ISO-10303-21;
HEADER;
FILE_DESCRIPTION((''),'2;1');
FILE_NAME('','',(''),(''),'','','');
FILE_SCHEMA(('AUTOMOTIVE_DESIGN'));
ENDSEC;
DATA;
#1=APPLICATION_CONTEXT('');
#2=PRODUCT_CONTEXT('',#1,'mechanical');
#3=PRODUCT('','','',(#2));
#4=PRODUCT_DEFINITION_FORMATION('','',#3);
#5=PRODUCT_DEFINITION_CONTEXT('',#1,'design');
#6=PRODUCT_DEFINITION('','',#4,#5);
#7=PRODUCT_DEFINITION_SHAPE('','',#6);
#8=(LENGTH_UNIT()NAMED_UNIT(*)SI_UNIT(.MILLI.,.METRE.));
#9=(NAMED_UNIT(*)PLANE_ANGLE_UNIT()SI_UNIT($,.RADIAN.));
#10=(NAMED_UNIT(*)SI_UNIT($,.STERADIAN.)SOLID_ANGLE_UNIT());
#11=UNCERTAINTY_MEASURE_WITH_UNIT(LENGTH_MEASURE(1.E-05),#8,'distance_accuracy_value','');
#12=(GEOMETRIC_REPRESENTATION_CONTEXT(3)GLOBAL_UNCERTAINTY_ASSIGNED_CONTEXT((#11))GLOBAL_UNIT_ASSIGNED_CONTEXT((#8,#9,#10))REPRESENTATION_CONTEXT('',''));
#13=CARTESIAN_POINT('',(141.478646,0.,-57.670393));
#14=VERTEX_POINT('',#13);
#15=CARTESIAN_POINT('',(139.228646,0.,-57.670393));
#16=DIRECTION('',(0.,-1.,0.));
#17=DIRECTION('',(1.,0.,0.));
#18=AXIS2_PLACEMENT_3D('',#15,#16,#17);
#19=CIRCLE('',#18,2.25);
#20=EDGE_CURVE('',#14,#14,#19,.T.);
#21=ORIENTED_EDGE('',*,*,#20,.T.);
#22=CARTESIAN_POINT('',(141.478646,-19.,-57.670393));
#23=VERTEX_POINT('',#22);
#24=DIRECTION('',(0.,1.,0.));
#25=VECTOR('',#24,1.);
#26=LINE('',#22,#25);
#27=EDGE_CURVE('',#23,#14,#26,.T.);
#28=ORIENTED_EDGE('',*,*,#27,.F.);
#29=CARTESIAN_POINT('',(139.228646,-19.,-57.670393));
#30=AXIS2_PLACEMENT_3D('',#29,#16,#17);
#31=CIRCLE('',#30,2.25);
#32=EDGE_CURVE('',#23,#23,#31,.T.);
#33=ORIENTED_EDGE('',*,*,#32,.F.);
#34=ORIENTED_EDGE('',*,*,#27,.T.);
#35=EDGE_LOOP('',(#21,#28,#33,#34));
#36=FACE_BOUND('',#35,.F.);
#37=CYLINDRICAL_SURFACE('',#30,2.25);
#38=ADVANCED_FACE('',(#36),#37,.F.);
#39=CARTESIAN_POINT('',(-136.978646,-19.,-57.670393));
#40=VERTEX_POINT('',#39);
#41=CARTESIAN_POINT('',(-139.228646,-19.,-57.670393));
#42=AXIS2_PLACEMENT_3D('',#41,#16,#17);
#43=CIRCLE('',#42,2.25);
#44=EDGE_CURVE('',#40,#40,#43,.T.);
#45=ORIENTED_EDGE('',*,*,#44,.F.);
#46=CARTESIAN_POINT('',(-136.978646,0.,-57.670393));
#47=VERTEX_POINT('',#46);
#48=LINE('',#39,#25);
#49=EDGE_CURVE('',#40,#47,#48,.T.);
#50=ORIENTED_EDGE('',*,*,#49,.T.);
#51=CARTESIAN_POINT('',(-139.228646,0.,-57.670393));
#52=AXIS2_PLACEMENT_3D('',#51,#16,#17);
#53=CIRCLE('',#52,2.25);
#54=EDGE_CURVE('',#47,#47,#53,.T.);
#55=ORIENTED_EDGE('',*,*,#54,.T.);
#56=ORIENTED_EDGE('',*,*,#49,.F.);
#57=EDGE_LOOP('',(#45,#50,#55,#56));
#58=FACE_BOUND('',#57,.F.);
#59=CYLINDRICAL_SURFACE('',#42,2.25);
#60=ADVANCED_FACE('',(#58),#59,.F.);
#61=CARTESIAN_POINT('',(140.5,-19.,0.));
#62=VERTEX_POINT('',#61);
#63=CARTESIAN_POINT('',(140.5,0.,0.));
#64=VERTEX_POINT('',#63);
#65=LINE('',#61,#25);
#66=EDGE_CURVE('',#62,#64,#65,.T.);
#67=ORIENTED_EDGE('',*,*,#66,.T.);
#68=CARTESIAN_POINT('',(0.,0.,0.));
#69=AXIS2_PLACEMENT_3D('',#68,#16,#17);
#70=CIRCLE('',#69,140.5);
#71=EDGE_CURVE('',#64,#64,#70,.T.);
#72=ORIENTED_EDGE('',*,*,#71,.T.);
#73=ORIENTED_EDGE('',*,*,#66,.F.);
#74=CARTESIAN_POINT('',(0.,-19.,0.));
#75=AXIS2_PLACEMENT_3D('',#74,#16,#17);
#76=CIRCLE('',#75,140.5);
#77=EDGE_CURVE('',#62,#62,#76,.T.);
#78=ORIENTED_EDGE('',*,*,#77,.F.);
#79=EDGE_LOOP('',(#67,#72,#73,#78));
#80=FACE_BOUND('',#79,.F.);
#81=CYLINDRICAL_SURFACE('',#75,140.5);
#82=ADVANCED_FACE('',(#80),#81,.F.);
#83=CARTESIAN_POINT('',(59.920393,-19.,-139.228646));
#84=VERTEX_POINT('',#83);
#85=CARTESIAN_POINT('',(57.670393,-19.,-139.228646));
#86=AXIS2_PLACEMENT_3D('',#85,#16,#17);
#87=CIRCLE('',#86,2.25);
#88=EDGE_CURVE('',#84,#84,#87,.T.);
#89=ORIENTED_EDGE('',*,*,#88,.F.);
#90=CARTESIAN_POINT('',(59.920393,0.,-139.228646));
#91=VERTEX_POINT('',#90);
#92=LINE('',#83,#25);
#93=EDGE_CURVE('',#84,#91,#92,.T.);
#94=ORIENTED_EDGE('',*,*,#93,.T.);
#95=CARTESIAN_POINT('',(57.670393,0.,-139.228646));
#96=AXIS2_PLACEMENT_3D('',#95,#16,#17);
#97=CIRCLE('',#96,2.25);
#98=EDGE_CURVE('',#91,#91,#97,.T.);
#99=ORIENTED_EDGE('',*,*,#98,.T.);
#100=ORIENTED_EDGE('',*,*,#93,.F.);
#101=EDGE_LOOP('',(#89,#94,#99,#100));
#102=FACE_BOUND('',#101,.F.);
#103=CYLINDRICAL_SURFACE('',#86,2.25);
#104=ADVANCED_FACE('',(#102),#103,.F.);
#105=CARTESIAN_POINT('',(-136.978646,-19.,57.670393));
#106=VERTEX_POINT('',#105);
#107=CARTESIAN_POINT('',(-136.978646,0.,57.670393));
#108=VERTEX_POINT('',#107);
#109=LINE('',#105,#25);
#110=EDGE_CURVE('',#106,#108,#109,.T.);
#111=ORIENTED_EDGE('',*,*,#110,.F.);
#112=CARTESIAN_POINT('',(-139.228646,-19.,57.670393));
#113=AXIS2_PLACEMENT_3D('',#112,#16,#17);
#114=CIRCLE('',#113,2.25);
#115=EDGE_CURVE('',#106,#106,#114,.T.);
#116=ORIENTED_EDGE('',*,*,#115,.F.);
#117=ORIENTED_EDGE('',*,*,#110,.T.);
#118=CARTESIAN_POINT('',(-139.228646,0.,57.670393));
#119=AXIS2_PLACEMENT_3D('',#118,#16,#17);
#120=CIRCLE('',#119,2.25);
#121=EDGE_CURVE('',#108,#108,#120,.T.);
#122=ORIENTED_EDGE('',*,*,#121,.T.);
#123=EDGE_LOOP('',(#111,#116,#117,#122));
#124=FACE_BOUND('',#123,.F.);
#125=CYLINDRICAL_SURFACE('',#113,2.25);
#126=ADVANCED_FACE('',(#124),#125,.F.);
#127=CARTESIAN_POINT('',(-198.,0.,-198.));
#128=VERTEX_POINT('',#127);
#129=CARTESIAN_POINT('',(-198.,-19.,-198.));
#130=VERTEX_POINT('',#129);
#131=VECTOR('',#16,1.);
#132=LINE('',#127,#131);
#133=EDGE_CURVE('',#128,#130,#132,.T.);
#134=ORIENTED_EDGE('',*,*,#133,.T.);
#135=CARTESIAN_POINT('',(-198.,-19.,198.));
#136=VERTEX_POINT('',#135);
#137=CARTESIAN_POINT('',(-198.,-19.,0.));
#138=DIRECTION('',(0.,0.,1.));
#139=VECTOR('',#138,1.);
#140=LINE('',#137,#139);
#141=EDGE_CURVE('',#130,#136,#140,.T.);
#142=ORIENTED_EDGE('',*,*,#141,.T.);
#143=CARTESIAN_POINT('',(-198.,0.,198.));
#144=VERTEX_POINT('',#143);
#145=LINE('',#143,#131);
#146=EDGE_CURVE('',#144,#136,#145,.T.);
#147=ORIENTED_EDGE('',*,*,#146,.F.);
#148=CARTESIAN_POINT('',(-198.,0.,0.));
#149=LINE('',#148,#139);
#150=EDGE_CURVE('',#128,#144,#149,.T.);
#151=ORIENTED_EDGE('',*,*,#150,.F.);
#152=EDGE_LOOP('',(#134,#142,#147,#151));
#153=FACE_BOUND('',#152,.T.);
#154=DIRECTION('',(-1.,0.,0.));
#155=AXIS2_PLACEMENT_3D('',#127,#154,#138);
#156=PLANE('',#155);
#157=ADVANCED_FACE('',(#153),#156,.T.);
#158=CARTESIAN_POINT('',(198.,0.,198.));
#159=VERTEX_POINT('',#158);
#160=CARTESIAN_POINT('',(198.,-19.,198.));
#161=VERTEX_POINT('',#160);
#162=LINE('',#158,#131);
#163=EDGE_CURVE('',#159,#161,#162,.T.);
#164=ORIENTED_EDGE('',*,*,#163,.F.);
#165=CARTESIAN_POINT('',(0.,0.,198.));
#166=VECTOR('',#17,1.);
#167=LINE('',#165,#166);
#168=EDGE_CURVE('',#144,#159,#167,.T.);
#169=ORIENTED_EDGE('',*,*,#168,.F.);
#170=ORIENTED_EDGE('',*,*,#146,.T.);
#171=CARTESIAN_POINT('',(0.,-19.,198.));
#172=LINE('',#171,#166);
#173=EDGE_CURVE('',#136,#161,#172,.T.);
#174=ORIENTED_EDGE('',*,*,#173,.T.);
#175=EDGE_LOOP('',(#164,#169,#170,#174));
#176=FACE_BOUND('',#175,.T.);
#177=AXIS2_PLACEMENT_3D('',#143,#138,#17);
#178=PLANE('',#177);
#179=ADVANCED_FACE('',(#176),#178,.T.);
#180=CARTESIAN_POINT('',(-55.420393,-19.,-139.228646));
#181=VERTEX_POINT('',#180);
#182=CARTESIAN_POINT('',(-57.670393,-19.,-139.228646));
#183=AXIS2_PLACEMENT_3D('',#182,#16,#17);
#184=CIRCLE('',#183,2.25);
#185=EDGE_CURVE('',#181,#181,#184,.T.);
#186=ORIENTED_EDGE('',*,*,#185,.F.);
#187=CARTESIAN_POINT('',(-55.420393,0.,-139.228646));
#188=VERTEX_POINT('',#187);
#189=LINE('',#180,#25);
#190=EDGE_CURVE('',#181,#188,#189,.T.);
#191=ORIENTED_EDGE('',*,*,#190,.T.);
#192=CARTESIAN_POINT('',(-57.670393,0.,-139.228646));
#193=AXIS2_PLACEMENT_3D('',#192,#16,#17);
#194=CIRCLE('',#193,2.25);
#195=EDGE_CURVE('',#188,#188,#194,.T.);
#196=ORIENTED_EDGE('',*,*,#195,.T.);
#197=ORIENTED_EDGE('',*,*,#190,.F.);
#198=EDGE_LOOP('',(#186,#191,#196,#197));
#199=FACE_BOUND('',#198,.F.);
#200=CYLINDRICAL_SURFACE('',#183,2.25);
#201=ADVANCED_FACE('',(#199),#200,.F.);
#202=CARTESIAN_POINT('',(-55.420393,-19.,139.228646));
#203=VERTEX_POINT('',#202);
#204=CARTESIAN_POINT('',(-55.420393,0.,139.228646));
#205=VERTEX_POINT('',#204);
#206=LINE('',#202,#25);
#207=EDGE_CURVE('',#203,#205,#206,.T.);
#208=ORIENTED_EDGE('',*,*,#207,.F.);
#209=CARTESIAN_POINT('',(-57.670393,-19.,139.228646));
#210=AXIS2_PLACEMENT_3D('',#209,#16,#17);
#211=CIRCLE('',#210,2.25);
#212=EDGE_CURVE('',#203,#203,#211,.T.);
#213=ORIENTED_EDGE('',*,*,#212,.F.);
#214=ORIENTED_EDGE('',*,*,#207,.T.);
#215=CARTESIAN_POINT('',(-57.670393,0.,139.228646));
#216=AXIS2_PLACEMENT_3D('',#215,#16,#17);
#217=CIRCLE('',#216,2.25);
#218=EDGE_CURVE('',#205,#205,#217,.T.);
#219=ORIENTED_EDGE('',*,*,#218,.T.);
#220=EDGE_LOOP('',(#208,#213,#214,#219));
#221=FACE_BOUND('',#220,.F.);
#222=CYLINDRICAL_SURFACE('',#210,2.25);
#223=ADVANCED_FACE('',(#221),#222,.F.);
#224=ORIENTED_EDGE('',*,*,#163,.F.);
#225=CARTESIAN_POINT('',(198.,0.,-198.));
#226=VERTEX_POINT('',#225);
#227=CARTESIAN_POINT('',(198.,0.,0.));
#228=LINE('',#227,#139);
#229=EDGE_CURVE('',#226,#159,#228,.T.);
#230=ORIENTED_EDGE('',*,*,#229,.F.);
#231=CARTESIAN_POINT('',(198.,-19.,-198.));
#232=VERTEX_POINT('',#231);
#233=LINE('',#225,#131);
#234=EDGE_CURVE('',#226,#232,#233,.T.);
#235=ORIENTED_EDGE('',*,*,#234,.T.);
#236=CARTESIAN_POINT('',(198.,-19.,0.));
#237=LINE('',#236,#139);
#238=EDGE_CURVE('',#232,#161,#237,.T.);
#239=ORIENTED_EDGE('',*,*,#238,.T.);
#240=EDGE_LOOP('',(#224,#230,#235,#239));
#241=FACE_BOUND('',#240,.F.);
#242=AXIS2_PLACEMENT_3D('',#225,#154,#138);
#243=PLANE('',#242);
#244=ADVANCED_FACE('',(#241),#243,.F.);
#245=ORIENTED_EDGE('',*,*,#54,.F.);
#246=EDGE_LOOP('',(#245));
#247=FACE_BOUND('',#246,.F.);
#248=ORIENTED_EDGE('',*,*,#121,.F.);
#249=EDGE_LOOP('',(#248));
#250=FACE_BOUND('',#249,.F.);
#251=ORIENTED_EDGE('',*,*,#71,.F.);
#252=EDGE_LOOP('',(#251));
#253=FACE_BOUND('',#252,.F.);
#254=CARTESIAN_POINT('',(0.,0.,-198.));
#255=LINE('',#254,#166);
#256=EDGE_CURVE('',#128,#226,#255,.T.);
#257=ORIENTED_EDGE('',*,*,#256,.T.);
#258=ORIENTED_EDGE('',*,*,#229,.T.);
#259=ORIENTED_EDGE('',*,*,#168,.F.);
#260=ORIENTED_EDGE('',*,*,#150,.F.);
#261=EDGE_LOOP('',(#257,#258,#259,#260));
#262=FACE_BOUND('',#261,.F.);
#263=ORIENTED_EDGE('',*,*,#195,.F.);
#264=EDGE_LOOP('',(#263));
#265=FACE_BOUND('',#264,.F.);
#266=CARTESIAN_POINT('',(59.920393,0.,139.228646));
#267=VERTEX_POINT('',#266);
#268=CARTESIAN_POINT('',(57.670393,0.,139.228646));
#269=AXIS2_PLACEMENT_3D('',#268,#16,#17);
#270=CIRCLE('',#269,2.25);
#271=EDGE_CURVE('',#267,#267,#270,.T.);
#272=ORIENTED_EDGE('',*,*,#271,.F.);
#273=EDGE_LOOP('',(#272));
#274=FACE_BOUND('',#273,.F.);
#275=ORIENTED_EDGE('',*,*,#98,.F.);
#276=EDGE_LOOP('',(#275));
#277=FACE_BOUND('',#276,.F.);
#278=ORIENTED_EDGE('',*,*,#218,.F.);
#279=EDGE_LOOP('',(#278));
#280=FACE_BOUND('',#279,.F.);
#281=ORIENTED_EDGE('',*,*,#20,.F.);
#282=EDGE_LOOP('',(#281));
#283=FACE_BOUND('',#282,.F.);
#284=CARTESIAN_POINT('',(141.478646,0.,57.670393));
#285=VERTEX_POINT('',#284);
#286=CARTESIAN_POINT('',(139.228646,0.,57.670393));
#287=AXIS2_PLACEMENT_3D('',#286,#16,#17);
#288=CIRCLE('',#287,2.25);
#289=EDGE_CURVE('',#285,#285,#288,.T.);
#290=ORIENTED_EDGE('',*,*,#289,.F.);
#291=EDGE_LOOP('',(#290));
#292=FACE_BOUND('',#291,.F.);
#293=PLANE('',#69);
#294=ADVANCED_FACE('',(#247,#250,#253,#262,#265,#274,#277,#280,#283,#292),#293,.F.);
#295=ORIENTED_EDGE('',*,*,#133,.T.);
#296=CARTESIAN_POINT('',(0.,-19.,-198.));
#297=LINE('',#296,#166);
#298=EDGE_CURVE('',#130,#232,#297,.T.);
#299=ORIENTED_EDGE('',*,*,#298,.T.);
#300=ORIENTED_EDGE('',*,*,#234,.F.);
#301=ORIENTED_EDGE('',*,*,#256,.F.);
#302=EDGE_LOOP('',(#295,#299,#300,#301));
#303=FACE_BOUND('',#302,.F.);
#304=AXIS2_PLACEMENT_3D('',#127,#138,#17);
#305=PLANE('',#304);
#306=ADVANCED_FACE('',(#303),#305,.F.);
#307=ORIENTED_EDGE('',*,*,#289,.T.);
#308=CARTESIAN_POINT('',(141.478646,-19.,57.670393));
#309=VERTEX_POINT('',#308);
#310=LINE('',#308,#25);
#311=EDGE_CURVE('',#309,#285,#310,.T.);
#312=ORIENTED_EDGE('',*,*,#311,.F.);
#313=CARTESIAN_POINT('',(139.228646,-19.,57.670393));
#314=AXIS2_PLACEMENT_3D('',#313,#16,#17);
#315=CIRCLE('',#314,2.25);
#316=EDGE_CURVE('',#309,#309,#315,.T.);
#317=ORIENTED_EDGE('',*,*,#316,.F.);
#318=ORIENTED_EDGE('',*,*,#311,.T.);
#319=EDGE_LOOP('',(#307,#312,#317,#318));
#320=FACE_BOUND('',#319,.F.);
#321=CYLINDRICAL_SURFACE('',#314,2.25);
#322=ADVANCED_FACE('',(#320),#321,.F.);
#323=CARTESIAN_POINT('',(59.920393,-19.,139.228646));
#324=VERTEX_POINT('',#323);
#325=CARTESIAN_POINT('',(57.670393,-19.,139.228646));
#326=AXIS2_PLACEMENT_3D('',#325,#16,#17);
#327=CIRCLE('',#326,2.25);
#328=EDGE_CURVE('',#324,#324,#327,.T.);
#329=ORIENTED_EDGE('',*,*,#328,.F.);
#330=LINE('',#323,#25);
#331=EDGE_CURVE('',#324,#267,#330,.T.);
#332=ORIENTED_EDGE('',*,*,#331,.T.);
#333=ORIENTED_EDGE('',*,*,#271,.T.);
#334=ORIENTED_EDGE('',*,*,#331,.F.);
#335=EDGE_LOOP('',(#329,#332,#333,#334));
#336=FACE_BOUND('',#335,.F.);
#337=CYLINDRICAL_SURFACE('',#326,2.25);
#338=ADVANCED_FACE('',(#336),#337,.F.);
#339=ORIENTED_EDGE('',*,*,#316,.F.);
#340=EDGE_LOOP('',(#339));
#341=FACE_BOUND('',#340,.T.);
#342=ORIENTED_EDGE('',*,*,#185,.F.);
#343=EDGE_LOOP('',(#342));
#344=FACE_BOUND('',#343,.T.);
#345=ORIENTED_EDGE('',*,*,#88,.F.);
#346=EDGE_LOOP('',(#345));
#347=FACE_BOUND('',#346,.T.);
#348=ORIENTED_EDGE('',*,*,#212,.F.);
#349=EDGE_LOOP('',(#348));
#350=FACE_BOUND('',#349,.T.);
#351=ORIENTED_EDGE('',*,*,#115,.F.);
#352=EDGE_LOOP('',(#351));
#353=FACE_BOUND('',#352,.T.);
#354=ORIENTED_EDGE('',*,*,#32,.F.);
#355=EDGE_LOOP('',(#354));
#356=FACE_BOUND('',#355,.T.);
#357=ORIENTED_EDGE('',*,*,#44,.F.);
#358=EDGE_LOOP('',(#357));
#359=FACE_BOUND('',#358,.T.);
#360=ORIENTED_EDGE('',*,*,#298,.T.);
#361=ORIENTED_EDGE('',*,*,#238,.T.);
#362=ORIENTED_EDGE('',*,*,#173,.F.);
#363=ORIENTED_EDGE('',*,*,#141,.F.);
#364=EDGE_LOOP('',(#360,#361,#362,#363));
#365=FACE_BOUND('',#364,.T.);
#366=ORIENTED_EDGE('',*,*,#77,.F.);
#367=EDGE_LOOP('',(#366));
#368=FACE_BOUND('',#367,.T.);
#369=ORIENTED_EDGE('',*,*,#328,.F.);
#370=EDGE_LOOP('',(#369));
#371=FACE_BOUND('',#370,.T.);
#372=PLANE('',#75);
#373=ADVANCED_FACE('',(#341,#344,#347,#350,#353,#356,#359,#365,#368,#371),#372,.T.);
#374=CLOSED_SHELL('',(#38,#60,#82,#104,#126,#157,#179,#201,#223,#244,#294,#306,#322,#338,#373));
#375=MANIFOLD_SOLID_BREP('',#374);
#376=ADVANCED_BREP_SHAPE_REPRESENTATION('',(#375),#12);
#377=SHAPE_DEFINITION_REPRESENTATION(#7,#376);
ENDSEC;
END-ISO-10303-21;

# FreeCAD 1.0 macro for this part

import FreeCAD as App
import Part
import Sketcher
Q = App.Units.Quantity


def add_polygon(sketch, points):
    """Adds a closed chain of lines whose ends are joined by coincident constraints."""
    first, n = sketch.GeometryCount, len(points)
    for a, b in zip(points, points[1:] + points[:1]):
        sketch.addGeometry(Part.LineSegment(App.Vector(*a, 0), App.Vector(*b, 0)), False)
    for i in range(n):
        sketch.addConstraint(Sketcher.Constraint("Coincident", first + i, 2, first + (i + 1) % n, 1))

doc = App.newDocument("Part")
body = doc.addObject("PartDesign::Body", "Body")

sketch1 = doc.addObject("Sketcher::SketchObject", "Sketch")
body.addObject(sketch1)
sketch1.AttachmentSupport = (doc.XZ_Plane, [""])
sketch1.MapMode = "FlatFace"
add_polygon(sketch1, [(-198, 198), (-198, -198), (198, -198), (198, 198)])
sketch1.addConstraint(Sketcher.Constraint("Vertical", 0))
sketch1.addConstraint(Sketcher.Constraint("Horizontal", 1))
sketch1.addConstraint(Sketcher.Constraint("Vertical", 2))
sketch1.addConstraint(Sketcher.Constraint("Horizontal", 3))
sketch1.addConstraint(Sketcher.Constraint("Symmetric", 0, 2, 2, 2, -1, 1))
sketch1.addConstraint(Sketcher.Constraint("Equal", 3, 0))
sketch1.addConstraint(Sketcher.Constraint("DistanceX", 1, 1, 1, 2, Q("396 mm")))
pad1 = doc.addObject("PartDesign::Pad", "Pad")
body.addObject(pad1)
pad1.Profile = sketch1
pad1.Length = 19

sketch2 = doc.addObject("Sketcher::SketchObject", "Sketch001")
body.addObject(sketch2)
sketch2.AttachmentSupport = (doc.XZ_Plane, [""])
sketch2.MapMode = "FlatFace"
sketch2.AttachmentOffset = App.Placement(App.Vector(0, 0, 19), App.Rotation())
sketch2.addGeometry(Part.Circle(App.Vector(0, 0, 0), App.Vector(0, 0, 1), 140), False)
sketch2.addConstraint(Sketcher.Constraint("Coincident", 0, 3, -1, 1))
sketch2.addConstraint(Sketcher.Constraint("Diameter", 0, Q("281 mm")))
pocket1 = doc.addObject("PartDesign::Pocket", "Pocket")
body.addObject(pocket1)
pocket1.Profile = sketch2
pocket1.Length = 25.4

sketch3 = doc.addObject("Sketcher::SketchObject", "Sketch002")
body.addObject(sketch3)
sketch3.AttachmentSupport = (doc.XZ_Plane, [""])
sketch3.MapMode = "FlatFace"
sketch3.AttachmentOffset = App.Placement(App.Vector(0, 0, 19), App.Rotation())
sketch3.addGeometry(Part.Circle(App.Vector(57.7, 139.2, 0), App.Vector(0, 0, 1), 2.2), False)
sketch3.addGeometry(Part.Circle(App.Vector(139.2, 57.7, 0), App.Vector(0, 0, 1), 2.2), False)
sketch3.addGeometry(Part.Circle(App.Vector(139.2, -57.7, 0), App.Vector(0, 0, 1), 2.2), False)
sketch3.addGeometry(Part.Circle(App.Vector(57.7, -139.2, 0), App.Vector(0, 0, 1), 2.2), False)
sketch3.addGeometry(Part.Circle(App.Vector(-57.7, -139.2, 0), App.Vector(0, 0, 1), 2.2), False)
sketch3.addGeometry(Part.Circle(App.Vector(-139.2, -57.7, 0), App.Vector(0, 0, 1), 2.2), False)
sketch3.addGeometry(Part.Circle(App.Vector(-139.2, 57.7, 0), App.Vector(0, 0, 1), 2.2), False)
sketch3.addGeometry(Part.Circle(App.Vector(-57.7, 139.2, 0), App.Vector(0, 0, 1), 2.2), False)
sketch3.addConstraint(Sketcher.Constraint("Equal", 0, 1))
sketch3.addConstraint(Sketcher.Constraint("Equal", 1, 2))
sketch3.addConstraint(Sketcher.Constraint("Equal", 2, 3))
sketch3.addConstraint(Sketcher.Constraint("Equal", 3, 4))
sketch3.addConstraint(Sketcher.Constraint("Equal", 4, 5))
sketch3.addConstraint(Sketcher.Constraint("Equal", 5, 6))
sketch3.addConstraint(Sketcher.Constraint("Equal", 6, 7))
sketch3.addConstraint(Sketcher.Constraint("Symmetric", 0, 3, 4, 3, -1, 1))
sketch3.addConstraint(Sketcher.Constraint("Symmetric", 1, 3, 5, 3, -1, 1))
sketch3.addConstraint(Sketcher.Constraint("Symmetric", 2, 3, 6, 3, -1, 1))
sketch3.addConstraint(Sketcher.Constraint("Symmetric", 3, 3, 7, 3, -1, 1))
sketch3.addConstraint(Sketcher.Constraint("Symmetric", 3, 3, 4, 3, -2))
sketch3.addConstraint(Sketcher.Constraint("Symmetric", 2, 3, 5, 3, -2))
sketch3.addConstraint(Sketcher.Constraint("Diameter", 0, Q("4.5 mm")))
sketch3.addConstraint(Sketcher.Constraint("DistanceY", 2, 3, 0, 3, Q("196.899039 mm")))
sketch3.addConstraint(Sketcher.Constraint("DistanceY", 3, 3, 0, 3, Q("278.457292 mm")))
sketch3.addConstraint(Sketcher.Constraint("DistanceX", 4, 3, 2, 3, Q("196.899039 mm")))
sketch3.addConstraint(Sketcher.Constraint("DistanceX", 5, 3, 2, 3, Q("278.457292 mm")))
pocket2 = doc.addObject("PartDesign::Pocket", "Pocket001")
body.addObject(pocket2)
pocket2.Profile = sketch3
pocket2.Length = 25.4

doc.recompute()
